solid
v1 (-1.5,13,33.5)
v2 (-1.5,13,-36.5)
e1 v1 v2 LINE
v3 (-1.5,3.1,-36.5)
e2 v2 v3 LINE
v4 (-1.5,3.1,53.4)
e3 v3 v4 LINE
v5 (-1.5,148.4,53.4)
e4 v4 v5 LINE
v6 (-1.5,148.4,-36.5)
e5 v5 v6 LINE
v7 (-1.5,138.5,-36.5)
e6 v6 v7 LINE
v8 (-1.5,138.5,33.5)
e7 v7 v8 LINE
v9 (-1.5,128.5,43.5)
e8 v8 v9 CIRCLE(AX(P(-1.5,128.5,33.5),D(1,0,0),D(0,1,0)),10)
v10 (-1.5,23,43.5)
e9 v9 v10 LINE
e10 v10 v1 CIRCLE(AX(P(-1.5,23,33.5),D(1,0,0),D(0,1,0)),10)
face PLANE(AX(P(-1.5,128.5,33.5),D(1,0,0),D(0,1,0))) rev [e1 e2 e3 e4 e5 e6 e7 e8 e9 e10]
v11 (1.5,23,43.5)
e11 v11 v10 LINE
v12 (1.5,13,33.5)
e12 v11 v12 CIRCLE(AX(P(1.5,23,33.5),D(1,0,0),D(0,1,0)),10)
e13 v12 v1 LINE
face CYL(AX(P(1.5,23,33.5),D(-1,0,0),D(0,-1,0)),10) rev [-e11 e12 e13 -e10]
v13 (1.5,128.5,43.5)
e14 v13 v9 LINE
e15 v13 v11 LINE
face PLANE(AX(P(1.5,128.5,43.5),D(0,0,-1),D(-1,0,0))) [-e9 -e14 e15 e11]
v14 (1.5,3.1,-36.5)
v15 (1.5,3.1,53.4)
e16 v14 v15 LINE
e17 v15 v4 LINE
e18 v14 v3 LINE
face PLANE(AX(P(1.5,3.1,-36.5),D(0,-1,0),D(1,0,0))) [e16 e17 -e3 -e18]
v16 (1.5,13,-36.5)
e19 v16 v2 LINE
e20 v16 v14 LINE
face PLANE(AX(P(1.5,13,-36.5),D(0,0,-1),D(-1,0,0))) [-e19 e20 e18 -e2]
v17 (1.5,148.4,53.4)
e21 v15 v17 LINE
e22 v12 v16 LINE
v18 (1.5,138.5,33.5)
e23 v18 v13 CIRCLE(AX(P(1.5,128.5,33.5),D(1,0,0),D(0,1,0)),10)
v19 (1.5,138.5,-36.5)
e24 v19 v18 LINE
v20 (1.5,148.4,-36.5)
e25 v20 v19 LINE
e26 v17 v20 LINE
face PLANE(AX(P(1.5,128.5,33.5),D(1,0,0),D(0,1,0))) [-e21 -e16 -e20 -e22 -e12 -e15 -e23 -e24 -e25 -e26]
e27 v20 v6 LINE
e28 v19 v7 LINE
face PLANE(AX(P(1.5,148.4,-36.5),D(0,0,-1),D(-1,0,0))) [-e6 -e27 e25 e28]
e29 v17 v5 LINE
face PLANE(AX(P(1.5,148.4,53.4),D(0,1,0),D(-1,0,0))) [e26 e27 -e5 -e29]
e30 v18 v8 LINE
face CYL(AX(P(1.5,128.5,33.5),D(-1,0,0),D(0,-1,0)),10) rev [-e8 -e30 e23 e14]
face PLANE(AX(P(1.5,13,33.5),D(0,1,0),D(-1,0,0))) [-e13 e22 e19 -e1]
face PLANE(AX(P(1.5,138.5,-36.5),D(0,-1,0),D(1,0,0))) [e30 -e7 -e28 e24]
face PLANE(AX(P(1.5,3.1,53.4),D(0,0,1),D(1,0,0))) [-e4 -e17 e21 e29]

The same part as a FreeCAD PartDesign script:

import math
import FreeCAD as App
import Part
import Sketcher
Q = App.Units.Quantity

doc = App.newDocument("Part")
body = doc.addObject("PartDesign::Body", "Body")

# Sketch on YZ plane
sketch1 = body.newObject("Sketcher::SketchObject", "Sketch")
sketch1.AttachmentSupport = (doc.getObject("YZ_Plane"), [""])
sketch1.MapMode = "FlatFace"
sketch1.AttachmentOffset = App.Placement(App.Vector(0, 0, -1.5), App.Rotation())
sketch1.addGeometry([
    Part.LineSegment(App.Vector(138, -36, 0), App.Vector(138, 34, 0)),  # 0
    Part.ArcOfCircle(Part.Circle(App.Vector(128, 34, 0), App.Vector(0, 0, 1), 10), math.radians(0), math.radians(90)),  # 1
    Part.LineSegment(App.Vector(128, 44, 0), App.Vector(23, 44, 0)),  # 2
    Part.ArcOfCircle(Part.Circle(App.Vector(23, 34, 0), App.Vector(0, 0, 1), 10), math.radians(90), math.radians(180)),  # 3
    Part.LineSegment(App.Vector(13, 34, 0), App.Vector(13, -36, 0)),  # 4
    Part.LineSegment(App.Vector(13, -36, 0), App.Vector(3, -36, 0)),  # 5
    Part.LineSegment(App.Vector(3, -36, 0), App.Vector(3, 53, 0)),  # 6
    Part.LineSegment(App.Vector(3, 53, 0), App.Vector(148, 53, 0)),  # 7
    Part.LineSegment(App.Vector(148, 53, 0), App.Vector(148, -36, 0)),  # 8
    Part.LineSegment(App.Vector(148, -36, 0), App.Vector(138, -36, 0)),  # 9
], False)
sketch1.addConstraint([
    Sketcher.Constraint("Tangent", 0, 2, 1, 1),
    Sketcher.Constraint("Tangent", 1, 2, 2, 1),
    Sketcher.Constraint("Tangent", 2, 2, 3, 1),
    Sketcher.Constraint("Tangent", 3, 2, 4, 1),
    Sketcher.Constraint("Coincident", 4, 2, 5, 1),
    Sketcher.Constraint("Coincident", 5, 2, 6, 1),
    Sketcher.Constraint("Coincident", 6, 2, 7, 1),
    Sketcher.Constraint("Coincident", 7, 2, 8, 1),
    Sketcher.Constraint("Coincident", 8, 2, 9, 1),
    Sketcher.Constraint("Coincident", 9, 2, 0, 1),
    Sketcher.Constraint("Vertical", 0),
    Sketcher.Constraint("Horizontal", 2),
    Sketcher.Constraint("Vertical", 4),
    Sketcher.Constraint("Horizontal", 5),
    Sketcher.Constraint("Vertical", 6),
    Sketcher.Constraint("Horizontal", 7),
    Sketcher.Constraint("Vertical", 8),
    Sketcher.Constraint("Horizontal", 9),
    Sketcher.Constraint("Equal", 1, 3),
    Sketcher.Constraint("Horizontal", 5, 2, 8, 2),
    Sketcher.Constraint("Equal", 5, 9),
    Sketcher.Constraint("Radius", 1, Q("10 mm")),
    Sketcher.Constraint("DistanceY", 0, 1, 0, 2, Q("70 mm")),
    Sketcher.Constraint("DistanceX", 2, 2, 2, 1, Q("105.5 mm")),
    Sketcher.Constraint("DistanceX", 5, 2, 5, 1, Q("9.9 mm")),
    Sketcher.Constraint("DistanceY", 6, 1, 6, 2, Q("89.9 mm")),
    Sketcher.Constraint("DistanceX", -1, 1, 3, 3, Q("23 mm")),
    Sketcher.Constraint("DistanceY", -1, 1, 1, 3, Q("33.5 mm")),
])
pad1 = body.newObject("PartDesign::Pad", "Pad")
pad1.Profile = sketch1
pad1.Length = 3

doc.recompute()
